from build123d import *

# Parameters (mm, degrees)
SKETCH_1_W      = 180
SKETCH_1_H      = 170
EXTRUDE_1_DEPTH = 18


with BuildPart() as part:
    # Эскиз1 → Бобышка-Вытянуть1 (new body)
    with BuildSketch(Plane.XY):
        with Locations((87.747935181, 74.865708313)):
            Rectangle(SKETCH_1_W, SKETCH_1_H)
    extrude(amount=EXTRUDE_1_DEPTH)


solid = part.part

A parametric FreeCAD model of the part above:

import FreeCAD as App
import Part
import Sketcher

doc = App.newDocument("Part")
params = doc.addObject("Spreadsheet::Sheet", "Params")
for row, (alias, value) in enumerate([
    ("sketch1_width", "180 mm"),
    ("sketch1_height", "170 mm"),
    ("pad1_length", "18 mm"),
], start=1):
    params.set(f"A{row}", alias)
    params.set(f"B{row}", "=" + value)
    params.setAlias(f"B{row}", alias)

body = doc.addObject("PartDesign::Body", "Body")

sketch1 = doc.addObject("Sketcher::SketchObject", "Sketch")
body.addObject(sketch1)
sketch1.AttachmentSupport = (doc.XY_Plane, [""])
sketch1.MapMode = "FlatFace"
sketch1.addGeometry([
    Part.LineSegment(App.Vector(-2, 160, 0), App.Vector(-2, -10, 0)),
    Part.LineSegment(App.Vector(-2, -10, 0), App.Vector(178, -10, 0)),
    Part.LineSegment(App.Vector(178, -10, 0), App.Vector(178, 160, 0)),
    Part.LineSegment(App.Vector(178, 160, 0), App.Vector(-2, 160, 0)),
], False)
sketch1.addConstraint([
    Sketcher.Constraint("Coincident", 0, 2, 1, 1),
    Sketcher.Constraint("Coincident", 1, 2, 2, 1),
    Sketcher.Constraint("Coincident", 2, 2, 3, 1),
    Sketcher.Constraint("Coincident", 3, 2, 0, 1),
    Sketcher.Constraint("Vertical", 0),
    Sketcher.Constraint("Horizontal", 1),
    Sketcher.Constraint("Vertical", 2),
    Sketcher.Constraint("Horizontal", 3),
    Sketcher.Constraint("DistanceX", 1, 1, 1, 2, 180.0),
    Sketcher.Constraint("DistanceY", 0, 2, 0, 1, 170.0),
    Sketcher.Constraint("DistanceY", 0, 2, -1, 1, 10.134292),
    Sketcher.Constraint("DistanceX", 0, 2, -1, 1, 2.252065),
])
sketch1.setExpression("Constraints[8]", "Params.sketch1_width")
sketch1.setExpression("Constraints[9]", "Params.sketch1_height")
pad1 = doc.addObject("PartDesign::Pad", "Pad")
body.addObject(pad1)
pad1.Profile = sketch1
pad1.setExpression("Length", "Params.pad1_length")

doc.recompute()
